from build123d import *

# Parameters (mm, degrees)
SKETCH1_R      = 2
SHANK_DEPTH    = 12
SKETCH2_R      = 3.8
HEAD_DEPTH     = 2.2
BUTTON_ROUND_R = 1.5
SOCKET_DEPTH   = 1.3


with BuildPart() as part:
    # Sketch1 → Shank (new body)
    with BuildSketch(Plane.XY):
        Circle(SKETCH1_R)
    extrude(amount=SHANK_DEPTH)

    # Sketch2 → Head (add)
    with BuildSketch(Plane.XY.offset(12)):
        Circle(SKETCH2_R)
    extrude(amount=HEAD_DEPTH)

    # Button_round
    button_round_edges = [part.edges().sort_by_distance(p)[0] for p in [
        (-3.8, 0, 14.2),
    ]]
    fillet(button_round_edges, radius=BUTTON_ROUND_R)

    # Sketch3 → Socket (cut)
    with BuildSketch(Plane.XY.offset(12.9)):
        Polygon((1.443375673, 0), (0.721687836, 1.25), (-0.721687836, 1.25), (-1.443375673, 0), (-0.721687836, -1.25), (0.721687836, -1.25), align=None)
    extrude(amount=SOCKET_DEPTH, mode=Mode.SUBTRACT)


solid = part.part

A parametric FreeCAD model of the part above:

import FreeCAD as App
import Part
import Sketcher
Q = App.Units.Quantity


def edges_at(feature, points):
    """Names of the edges that pass closest to the given points."""
    edges = feature.Shape.Edges
    near = lambda p: min(range(len(edges)), key=lambda i: edges[i].distToShape(Part.Vertex(*p))[0])
    return sorted({f"Edge{near(p) + 1}" for p in points})

doc = App.newDocument("Part")
body = doc.addObject("PartDesign::Body", "Body")

sketch1 = body.newObject("Sketcher::SketchObject", "Sketch")
sketch1.AttachmentSupport = (doc.getObject("XY_Plane"), [""])
sketch1.MapMode = "FlatFace"
sketch1.addGeometry(Part.Circle(App.Vector(0, 0, 0), App.Vector(0, 0, 1), 2), False)
sketch1.addConstraint([
    Sketcher.Constraint("Coincident", 0, 3, -1, 1),
    Sketcher.Constraint("Diameter", 0, Q("4 mm")),
])
pad1 = body.newObject("PartDesign::Pad", "Pad")
pad1.Profile = sketch1
pad1.Length = 12

sketch2 = body.newObject("Sketcher::SketchObject", "Sketch001")
sketch2.AttachmentSupport = (doc.getObject("XY_Plane"), [""])
sketch2.MapMode = "FlatFace"
sketch2.AttachmentOffset = App.Placement(App.Vector(0, 0, 12), App.Rotation())
sketch2.addGeometry(Part.Circle(App.Vector(0, 0, 0), App.Vector(0, 0, 1), 3.8), False)
sketch2.addConstraint([
    Sketcher.Constraint("Coincident", 0, 3, -1, 1),
    Sketcher.Constraint("Diameter", 0, Q("7.6 mm")),
])
pad2 = body.newObject("PartDesign::Pad", "Pad001")
pad2.Profile = sketch2
pad2.Length = 2.2
doc.recompute()

fillet = body.newObject("PartDesign::Fillet", "Fillet")
fillet.Base = (pad2, edges_at(pad2, [(-3.8, 0, 14.2)]))
fillet.Radius = 1.5

sketch3 = body.newObject("Sketcher::SketchObject", "Sketch002")
sketch3.AttachmentSupport = (doc.getObject("XY_Plane"), [""])
sketch3.MapMode = "FlatFace"
sketch3.AttachmentOffset = App.Placement(App.Vector(0, 0, 12.9), App.Rotation())
sketch3.addGeometry([
    Part.LineSegment(App.Vector(1.4, 0, 0), App.Vector(0.7, 1.2, 0)),
    Part.LineSegment(App.Vector(0.7, 1.2, 0), App.Vector(-0.7, 1.2, 0)),
    Part.LineSegment(App.Vector(-0.7, 1.2, 0), App.Vector(-1.4, 0, 0)),
    Part.LineSegment(App.Vector(-1.4, 0, 0), App.Vector(-0.7, -1.2, 0)),
    Part.LineSegment(App.Vector(-0.7, -1.2, 0), App.Vector(0.7, -1.2, 0)),
    Part.LineSegment(App.Vector(0.7, -1.2, 0), App.Vector(1.4, 0, 0)),
], False)
sketch3.addConstraint([
    Sketcher.Constraint("Coincident", 0, 2, 1, 1),
    Sketcher.Constraint("Coincident", 1, 2, 2, 1),
    Sketcher.Constraint("Coincident", 2, 2, 3, 1),
    Sketcher.Constraint("Coincident", 3, 2, 4, 1),
    Sketcher.Constraint("Coincident", 4, 2, 5, 1),
    Sketcher.Constraint("Coincident", 5, 2, 0, 1),
    Sketcher.Constraint("Horizontal", 1),
    Sketcher.Constraint("Horizontal", 4),
    Sketcher.Constraint("Symmetric", 0, 2, 3, 2, -1, 1),
    Sketcher.Constraint("Symmetric", 2, 2, 5, 2, -1, 1),
    Sketcher.Constraint("PointOnObject", 2, 2, -1),
    Sketcher.Constraint("Parallel", 2, 5),
    Sketcher.Constraint("Vertical", 1, 2, 3, 2),
    Sketcher.Constraint("Angle", 0, Q("120 deg")),
    Sketcher.Constraint("DistanceY", 3, 2, 1, 2, Q("2.5 mm")),
    Sketcher.Constraint("DistanceX", 1, 2, 1, 1, Q("1.443376 mm")),
])
pocket1 = body.newObject("PartDesign::Pocket", "Pocket")
pocket1.Profile = sketch3
pocket1.Length = 1.3
pocket1.Reversed = True

doc.recompute()
